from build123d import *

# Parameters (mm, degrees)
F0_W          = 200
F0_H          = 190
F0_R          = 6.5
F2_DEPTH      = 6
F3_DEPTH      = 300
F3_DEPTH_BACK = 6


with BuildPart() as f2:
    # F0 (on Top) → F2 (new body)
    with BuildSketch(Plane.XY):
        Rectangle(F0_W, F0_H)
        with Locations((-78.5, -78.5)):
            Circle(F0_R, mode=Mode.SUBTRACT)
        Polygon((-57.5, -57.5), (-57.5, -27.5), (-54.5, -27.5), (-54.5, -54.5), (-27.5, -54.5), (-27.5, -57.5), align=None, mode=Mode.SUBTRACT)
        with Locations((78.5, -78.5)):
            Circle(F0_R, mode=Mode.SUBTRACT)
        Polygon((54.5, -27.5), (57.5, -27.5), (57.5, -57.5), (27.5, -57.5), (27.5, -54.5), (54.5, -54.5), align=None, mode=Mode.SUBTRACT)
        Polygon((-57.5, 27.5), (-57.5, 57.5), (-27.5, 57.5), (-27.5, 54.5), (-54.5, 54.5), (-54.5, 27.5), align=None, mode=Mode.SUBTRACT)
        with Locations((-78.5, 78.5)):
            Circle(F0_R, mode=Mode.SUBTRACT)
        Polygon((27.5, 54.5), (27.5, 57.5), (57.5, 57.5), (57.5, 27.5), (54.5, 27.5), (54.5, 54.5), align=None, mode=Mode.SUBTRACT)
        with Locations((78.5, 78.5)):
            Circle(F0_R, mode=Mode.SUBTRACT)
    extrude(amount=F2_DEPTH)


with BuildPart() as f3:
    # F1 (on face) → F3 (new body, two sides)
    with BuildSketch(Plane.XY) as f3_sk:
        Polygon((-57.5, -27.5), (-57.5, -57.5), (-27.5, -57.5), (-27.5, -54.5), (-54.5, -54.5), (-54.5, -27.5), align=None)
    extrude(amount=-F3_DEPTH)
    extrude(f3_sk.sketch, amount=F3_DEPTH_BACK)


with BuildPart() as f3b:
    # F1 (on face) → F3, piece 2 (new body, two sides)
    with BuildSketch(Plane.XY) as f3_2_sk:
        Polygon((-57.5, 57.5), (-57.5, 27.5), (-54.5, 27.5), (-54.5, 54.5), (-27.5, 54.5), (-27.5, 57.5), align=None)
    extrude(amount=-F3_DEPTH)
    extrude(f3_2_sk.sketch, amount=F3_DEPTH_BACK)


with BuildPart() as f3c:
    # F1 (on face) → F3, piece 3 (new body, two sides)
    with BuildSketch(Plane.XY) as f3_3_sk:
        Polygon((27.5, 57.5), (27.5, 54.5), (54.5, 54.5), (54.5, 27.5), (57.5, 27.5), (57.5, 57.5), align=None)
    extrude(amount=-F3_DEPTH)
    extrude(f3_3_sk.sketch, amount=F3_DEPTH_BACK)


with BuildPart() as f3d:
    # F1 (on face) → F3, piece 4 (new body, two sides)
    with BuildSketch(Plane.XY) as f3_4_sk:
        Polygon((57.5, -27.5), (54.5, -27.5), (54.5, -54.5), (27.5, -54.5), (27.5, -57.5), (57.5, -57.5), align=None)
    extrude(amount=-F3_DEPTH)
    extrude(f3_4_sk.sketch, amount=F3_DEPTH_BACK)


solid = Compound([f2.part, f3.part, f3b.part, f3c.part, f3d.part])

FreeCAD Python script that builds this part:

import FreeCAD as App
import Part
import Sketcher

V = App.Vector
Q = App.Units.Quantity

doc = App.newDocument("Part")
body = doc.addObject("PartDesign::Body", "Body")

# Sketch on XY plane
sketch1 = doc.addObject("Sketcher::SketchObject", "Sketch")
body.addObject(sketch1)
sketch1.AttachmentSupport = (doc.XY_Plane, [""])
sketch1.MapMode = "FlatFace"
sketch1.addGeometry(Part.LineSegment(V(-100, 95, 0), V(-100, -95, 0)), False)
sketch1.addGeometry(Part.LineSegment(V(-100, -95, 0), V(100, -95, 0)), False)
sketch1.addGeometry(Part.LineSegment(V(100, -95, 0), V(100, 95, 0)), False)
sketch1.addGeometry(Part.LineSegment(V(100, 95, 0), V(-100, 95, 0)), False)
sketch1.addGeometry(Part.Circle(V(-78.5, -78.5, 0), V(0, 0, 1), 6.5), False)
sketch1.addGeometry(Part.LineSegment(V(-27.5, -57.5, 0), V(-57.5, -57.5, 0)), False)
sketch1.addGeometry(Part.LineSegment(V(-57.5, -57.5, 0), V(-57.5, -27.5, 0)), False)
sketch1.addGeometry(Part.LineSegment(V(-57.5, -27.5, 0), V(-54.5, -27.5, 0)), False)
sketch1.addGeometry(Part.LineSegment(V(-54.5, -27.5, 0), V(-54.5, -54.5, 0)), False)
sketch1.addGeometry(Part.LineSegment(V(-54.5, -54.5, 0), V(-27.5, -54.5, 0)), False)
sketch1.addGeometry(Part.LineSegment(V(-27.5, -54.5, 0), V(-27.5, -57.5, 0)), False)
sketch1.addGeometry(Part.Circle(V(78.5, -78.5, 0), V(0, 0, 1), 6.5), False)
sketch1.addGeometry(Part.LineSegment(V(54.5, -54.5, 0), V(54.5, -27.5, 0)), False)
sketch1.addGeometry(Part.LineSegment(V(54.5, -27.5, 0), V(57.5, -27.5, 0)), False)
sketch1.addGeometry(Part.LineSegment(V(57.5, -27.5, 0), V(57.5, -57.5, 0)), False)
sketch1.addGeometry(Part.LineSegment(V(57.5, -57.5, 0), V(27.5, -57.5, 0)), False)
sketch1.addGeometry(Part.LineSegment(V(27.5, -57.5, 0), V(27.5, -54.5, 0)), False)
sketch1.addGeometry(Part.LineSegment(V(27.5, -54.5, 0), V(54.5, -54.5, 0)), False)
sketch1.addGeometry(Part.Circle(V(-78.5, 78.5, 0), V(0, 0, 1), 6.5), False)
sketch1.addGeometry(Part.LineSegment(V(-54.5, 27.5, 0), V(-57.5, 27.5, 0)), False)
sketch1.addGeometry(Part.LineSegment(V(-57.5, 27.5, 0), V(-57.5, 57.5, 0)), False)
sketch1.addGeometry(Part.LineSegment(V(-57.5, 57.5, 0), V(-27.5, 57.5, 0)), False)
sketch1.addGeometry(Part.LineSegment(V(-27.5, 57.5, 0), V(-27.5, 54.5, 0)), False)
sketch1.addGeometry(Part.LineSegment(V(-27.5, 54.5, 0), V(-54.5, 54.5, 0)), False)
sketch1.addGeometry(Part.LineSegment(V(-54.5, 54.5, 0), V(-54.5, 27.5, 0)), False)
sketch1.addGeometry(Part.LineSegment(V(54.5, 54.5, 0), V(27.5, 54.5, 0)), False)
sketch1.addGeometry(Part.LineSegment(V(27.5, 54.5, 0), V(27.5, 57.5, 0)), False)
sketch1.addGeometry(Part.LineSegment(V(27.5, 57.5, 0), V(57.5, 57.5, 0)), False)
sketch1.addGeometry(Part.LineSegment(V(57.5, 57.5, 0), V(57.5, 27.5, 0)), False)
sketch1.addGeometry(Part.LineSegment(V(57.5, 27.5, 0), V(54.5, 27.5, 0)), False)
sketch1.addGeometry(Part.LineSegment(V(54.5, 27.5, 0), V(54.5, 54.5, 0)), False)
sketch1.addGeometry(Part.Circle(V(78.5, 78.5, 0), V(0, 0, 1), 6.5), False)
sketch1.addConstraint(Sketcher.Constraint("Coincident", 0, 2, 1, 1))
sketch1.addConstraint(Sketcher.Constraint("Coincident", 1, 2, 2, 1))
sketch1.addConstraint(Sketcher.Constraint("Coincident", 2, 2, 3, 1))
sketch1.addConstraint(Sketcher.Constraint("Coincident", 3, 2, 0, 1))
sketch1.addConstraint(Sketcher.Constraint("Coincident", 5, 2, 6, 1))
sketch1.addConstraint(Sketcher.Constraint("Coincident", 6, 2, 7, 1))
sketch1.addConstraint(Sketcher.Constraint("Coincident", 7, 2, 8, 1))
sketch1.addConstraint(Sketcher.Constraint("Coincident", 8, 2, 9, 1))
sketch1.addConstraint(Sketcher.Constraint("Coincident", 9, 2, 10, 1))
sketch1.addConstraint(Sketcher.Constraint("Coincident", 10, 2, 5, 1))
sketch1.addConstraint(Sketcher.Constraint("Coincident", 12, 2, 13, 1))
sketch1.addConstraint(Sketcher.Constraint("Coincident", 13, 2, 14, 1))
sketch1.addConstraint(Sketcher.Constraint("Coincident", 14, 2, 15, 1))
sketch1.addConstraint(Sketcher.Constraint("Coincident", 15, 2, 16, 1))
sketch1.addConstraint(Sketcher.Constraint("Coincident", 16, 2, 17, 1))
sketch1.addConstraint(Sketcher.Constraint("Coincident", 17, 2, 12, 1))
sketch1.addConstraint(Sketcher.Constraint("Coincident", 19, 2, 20, 1))
sketch1.addConstraint(Sketcher.Constraint("Coincident", 20, 2, 21, 1))
sketch1.addConstraint(Sketcher.Constraint("Coincident", 21, 2, 22, 1))
sketch1.addConstraint(Sketcher.Constraint("Coincident", 22, 2, 23, 1))
sketch1.addConstraint(Sketcher.Constraint("Coincident", 23, 2, 24, 1))
sketch1.addConstraint(Sketcher.Constraint("Coincident", 24, 2, 19, 1))
sketch1.addConstraint(Sketcher.Constraint("Coincident", 25, 2, 26, 1))
sketch1.addConstraint(Sketcher.Constraint("Coincident", 26, 2, 27, 1))
sketch1.addConstraint(Sketcher.Constraint("Coincident", 27, 2, 28, 1))
sketch1.addConstraint(Sketcher.Constraint("Coincident", 28, 2, 29, 1))
sketch1.addConstraint(Sketcher.Constraint("Coincident", 29, 2, 30, 1))
sketch1.addConstraint(Sketcher.Constraint("Coincident", 30, 2, 25, 1))
sketch1.addConstraint(Sketcher.Constraint("Vertical", 0))
sketch1.addConstraint(Sketcher.Constraint("Horizontal", 1))
sketch1.addConstraint(Sketcher.Constraint("Vertical", 2))
sketch1.addConstraint(Sketcher.Constraint("Horizontal", 3))
sketch1.addConstraint(Sketcher.Constraint("Horizontal", 5))
sketch1.addConstraint(Sketcher.Constraint("Vertical", 6))
sketch1.addConstraint(Sketcher.Constraint("Horizontal", 7))
sketch1.addConstraint(Sketcher.Constraint("Vertical", 8))
sketch1.addConstraint(Sketcher.Constraint("Horizontal", 9))
sketch1.addConstraint(Sketcher.Constraint("Vertical", 10))
sketch1.addConstraint(Sketcher.Constraint("Vertical", 12))
sketch1.addConstraint(Sketcher.Constraint("Horizontal", 13))
sketch1.addConstraint(Sketcher.Constraint("Vertical", 14))
sketch1.addConstraint(Sketcher.Constraint("Horizontal", 15))
sketch1.addConstraint(Sketcher.Constraint("Vertical", 16))
sketch1.addConstraint(Sketcher.Constraint("Horizontal", 17))
sketch1.addConstraint(Sketcher.Constraint("Horizontal", 19))
sketch1.addConstraint(Sketcher.Constraint("Vertical", 20))
sketch1.addConstraint(Sketcher.Constraint("Horizontal", 21))
sketch1.addConstraint(Sketcher.Constraint("Vertical", 22))
sketch1.addConstraint(Sketcher.Constraint("Horizontal", 23))
sketch1.addConstraint(Sketcher.Constraint("Vertical", 24))
sketch1.addConstraint(Sketcher.Constraint("Horizontal", 25))
sketch1.addConstraint(Sketcher.Constraint("Vertical", 26))
sketch1.addConstraint(Sketcher.Constraint("Horizontal", 27))
sketch1.addConstraint(Sketcher.Constraint("Vertical", 28))
sketch1.addConstraint(Sketcher.Constraint("Horizontal", 29))
sketch1.addConstraint(Sketcher.Constraint("Vertical", 30))
sketch1.addConstraint(Sketcher.Constraint("Equal", 4, 11))
sketch1.addConstraint(Sketcher.Constraint("Equal", 11, 18))
sketch1.addConstraint(Sketcher.Constraint("Equal", 18, 31))
sketch1.addConstraint(Sketcher.Constraint("Symmetric", 11, 3, 18, 3, -1, 1))
sketch1.addConstraint(Sketcher.Constraint("Symmetric", 4, 3, 31, 3, -1, 1))
sketch1.addConstraint(Sketcher.Constraint("Symmetric", 0, 2, 2, 2, -1, 1))
sketch1.addConstraint(Sketcher.Constraint("Symmetric", 13, 2, 19, 2, -1, 1))
sketch1.addConstraint(Sketcher.Constraint("Symmetric", 15, 2, 21, 2, -1, 1))
sketch1.addConstraint(Sketcher.Constraint("Symmetric", 17, 2, 23, 2, -1, 1))
sketch1.addConstraint(Sketcher.Constraint("Symmetric", 9, 2, 25, 2, -1, 1))
sketch1.addConstraint(Sketcher.Constraint("Symmetric", 5, 2, 27, 2, -1, 1))
sketch1.addConstraint(Sketcher.Constraint("Symmetric", 7, 2, 29, 2, -1, 1))
sketch1.addConstraint(Sketcher.Constraint("Symmetric", 4, 3, 11, 3, -2))
sketch1.addConstraint(Sketcher.Constraint("Symmetric", 7, 2, 12, 2, -2))
sketch1.addConstraint(Sketcher.Constraint("Symmetric", 5, 2, 14, 2, -2))
sketch1.addConstraint(Sketcher.Constraint("Symmetric", 9, 2, 16, 2, -2))
sketch1.addConstraint(Sketcher.Constraint("Equal", 27, 6))
sketch1.addConstraint(Sketcher.Constraint("Equal", 25, 8))
sketch1.addConstraint(Sketcher.Constraint("Diameter", 4, Q("13 mm")))
sketch1.addConstraint(Sketcher.Constraint("DistanceX", 1, 1, 1, 2, Q("200 mm")))
sketch1.addConstraint(Sketcher.Constraint("DistanceX", 5, 2, 5, 1, Q("30 mm")))
sketch1.addConstraint(Sketcher.Constraint("DistanceX", 7, 1, 7, 2, Q("3 mm")))
sketch1.addConstraint(Sketcher.Constraint("DistanceY", 0, 2, 0, 1, Q("190 mm")))
sketch1.addConstraint(Sketcher.Constraint("DistanceX", 4, 3, 11, 3, Q("157 mm")))
sketch1.addConstraint(Sketcher.Constraint("DistanceY", 4, 3, 18, 3, Q("157 mm")))
sketch1.addConstraint(Sketcher.Constraint("DistanceX", 4, 3, 5, 2, Q("21 mm")))
sketch1.addConstraint(Sketcher.Constraint("DistanceY", 4, 3, 5, 2, Q("21 mm")))
pad1 = doc.addObject("PartDesign::Pad", "Pad")
body.addObject(pad1)
pad1.Profile = sketch1
pad1.Length = 6
body2 = doc.addObject("PartDesign::Body", "Body001")

# Sketch on XY plane
sketch2 = doc.addObject("Sketcher::SketchObject", "Sketch001")
body2.addObject(sketch2)
sketch2.AttachmentSupport = (doc.getObject("XY_Plane001"), [""])
sketch2.MapMode = "FlatFace"
sketch2.addGeometry(Part.LineSegment(V(-57.5, -27.5, 0), V(-57.5, -57.5, 0)), False)
sketch2.addGeometry(Part.LineSegment(V(-57.5, -57.5, 0), V(-27.5, -57.5, 0)), False)
sketch2.addGeometry(Part.LineSegment(V(-27.5, -57.5, 0), V(-27.5, -54.5, 0)), False)
sketch2.addGeometry(Part.LineSegment(V(-27.5, -54.5, 0), V(-54.5, -54.5, 0)), False)
sketch2.addGeometry(Part.LineSegment(V(-54.5, -54.5, 0), V(-54.5, -27.5, 0)), False)
sketch2.addGeometry(Part.LineSegment(V(-54.5, -27.5, 0), V(-57.5, -27.5, 0)), False)
sketch2.addConstraint(Sketcher.Constraint("Coincident", 0, 2, 1, 1))
sketch2.addConstraint(Sketcher.Constraint("Coincident", 1, 2, 2, 1))
sketch2.addConstraint(Sketcher.Constraint("Coincident", 2, 2, 3, 1))
sketch2.addConstraint(Sketcher.Constraint("Coincident", 3, 2, 4, 1))
sketch2.addConstraint(Sketcher.Constraint("Coincident", 4, 2, 5, 1))
sketch2.addConstraint(Sketcher.Constraint("Coincident", 5, 2, 0, 1))
sketch2.addConstraint(Sketcher.Constraint("Vertical", 0))
sketch2.addConstraint(Sketcher.Constraint("Horizontal", 1))
sketch2.addConstraint(Sketcher.Constraint("Vertical", 2))
sketch2.addConstraint(Sketcher.Constraint("Horizontal", 3))
sketch2.addConstraint(Sketcher.Constraint("Vertical", 4))
sketch2.addConstraint(Sketcher.Constraint("Horizontal", 5))
sketch2.addConstraint(Sketcher.Constraint("Equal", 1, 0))
sketch2.addConstraint(Sketcher.Constraint("Equal", 5, 2))
sketch2.addConstraint(Sketcher.Constraint("DistanceX", 1, 1, 1, 2, Q("30 mm")))
sketch2.addConstraint(Sketcher.Constraint("DistanceX", 3, 2, 3, 1, Q("27 mm")))
sketch2.addConstraint(Sketcher.Constraint("DistanceX", 0, 2, -1, 1, Q("57.5 mm")))
sketch2.addConstraint(Sketcher.Constraint("DistanceY", 0, 2, -1, 1, Q("57.5 mm")))
pad2 = doc.addObject("PartDesign::Pad", "Pad001")
body2.addObject(pad2)
pad2.Profile = sketch2
pad2.Type = "TwoLengths"
pad2.Length = 300
pad2.Length2 = 6
pad2.Reversed = True
body3 = doc.addObject("PartDesign::Body", "Body002")

# Sketch on XY plane
sketch3 = doc.addObject("Sketcher::SketchObject", "Sketch002")
body3.addObject(sketch3)
sketch3.AttachmentSupport = (doc.getObject("XY_Plane002"), [""])
sketch3.MapMode = "FlatFace"
sketch3.addGeometry(Part.LineSegment(V(-57.5, 57.5, 0), V(-57.5, 27.5, 0)), False)
sketch3.addGeometry(Part.LineSegment(V(-57.5, 27.5, 0), V(-54.5, 27.5, 0)), False)
sketch3.addGeometry(Part.LineSegment(V(-54.5, 27.5, 0), V(-54.5, 54.5, 0)), False)
sketch3.addGeometry(Part.LineSegment(V(-54.5, 54.5, 0), V(-27.5, 54.5, 0)), False)
sketch3.addGeometry(Part.LineSegment(V(-27.5, 54.5, 0), V(-27.5, 57.5, 0)), False)
sketch3.addGeometry(Part.LineSegment(V(-27.5, 57.5, 0), V(-57.5, 57.5, 0)), False)
sketch3.addConstraint(Sketcher.Constraint("Coincident", 0, 2, 1, 1))
sketch3.addConstraint(Sketcher.Constraint("Coincident", 1, 2, 2, 1))
sketch3.addConstraint(Sketcher.Constraint("Coincident", 2, 2, 3, 1))
sketch3.addConstraint(Sketcher.Constraint("Coincident", 3, 2, 4, 1))
sketch3.addConstraint(Sketcher.Constraint("Coincident", 4, 2, 5, 1))
sketch3.addConstraint(Sketcher.Constraint("Coincident", 5, 2, 0, 1))
sketch3.addConstraint(Sketcher.Constraint("Vertical", 0))
sketch3.addConstraint(Sketcher.Constraint("Horizontal", 1))
sketch3.addConstraint(Sketcher.Constraint("Vertical", 2))
sketch3.addConstraint(Sketcher.Constraint("Horizontal", 3))
sketch3.addConstraint(Sketcher.Constraint("Vertical", 4))
sketch3.addConstraint(Sketcher.Constraint("Horizontal", 5))
sketch3.addConstraint(Sketcher.Constraint("Equal", 5, 0))
sketch3.addConstraint(Sketcher.Constraint("Equal", 3, 2))
sketch3.addConstraint(Sketcher.Constraint("DistanceX", 1, 1, 1, 2, Q("3 mm")))
sketch3.addConstraint(Sketcher.Constraint("DistanceX", 3, 1, 3, 2, Q("27 mm")))
sketch3.addConstraint(Sketcher.Constraint("DistanceX", 0, 2, -1, 1, Q("57.5 mm")))
sketch3.addConstraint(Sketcher.Constraint("DistanceY", -1, 1, 0, 2, Q("27.5 mm")))
pad3 = doc.addObject("PartDesign::Pad", "Pad002")
body3.addObject(pad3)
pad3.Profile = sketch3
pad3.Type = "TwoLengths"
pad3.Length = 300
pad3.Length2 = 6
pad3.Reversed = True
body4 = doc.addObject("PartDesign::Body", "Body003")

# Sketch on XY plane
sketch4 = doc.addObject("Sketcher::SketchObject", "Sketch003")
body4.addObject(sketch4)
sketch4.AttachmentSupport = (doc.getObject("XY_Plane003"), [""])
sketch4.MapMode = "FlatFace"
sketch4.addGeometry(Part.LineSegment(V(27.5, 57.5, 0), V(27.5, 54.5, 0)), False)
sketch4.addGeometry(Part.LineSegment(V(27.5, 54.5, 0), V(54.5, 54.5, 0)), False)
sketch4.addGeometry(Part.LineSegment(V(54.5, 54.5, 0), V(54.5, 27.5, 0)), False)
sketch4.addGeometry(Part.LineSegment(V(54.5, 27.5, 0), V(57.5, 27.5, 0)), False)
sketch4.addGeometry(Part.LineSegment(V(57.5, 27.5, 0), V(57.5, 57.5, 0)), False)
sketch4.addGeometry(Part.LineSegment(V(57.5, 57.5, 0), V(27.5, 57.5, 0)), False)
sketch4.addConstraint(Sketcher.Constraint("Coincident", 0, 2, 1, 1))
sketch4.addConstraint(Sketcher.Constraint("Coincident", 1, 2, 2, 1))
sketch4.addConstraint(Sketcher.Constraint("Coincident", 2, 2, 3, 1))
sketch4.addConstraint(Sketcher.Constraint("Coincident", 3, 2, 4, 1))
sketch4.addConstraint(Sketcher.Constraint("Coincident", 4, 2, 5, 1))
sketch4.addConstraint(Sketcher.Constraint("Coincident", 5, 2, 0, 1))
sketch4.addConstraint(Sketcher.Constraint("Vertical", 0))
sketch4.addConstraint(Sketcher.Constraint("Horizontal", 1))
sketch4.addConstraint(Sketcher.Constraint("Vertical", 2))
sketch4.addConstraint(Sketcher.Constraint("Horizontal", 3))
sketch4.addConstraint(Sketcher.Constraint("Vertical", 4))
sketch4.addConstraint(Sketcher.Constraint("Horizontal", 5))
sketch4.addConstraint(Sketcher.Constraint("Equal", 3, 0))
sketch4.addConstraint(Sketcher.Constraint("Equal", 1, 2))
sketch4.addConstraint(Sketcher.Constraint("DistanceX", 1, 1, 1, 2, Q("27 mm")))
sketch4.addConstraint(Sketcher.Constraint("DistanceX", 3, 1, 3, 2, Q("3 mm")))
sketch4.addConstraint(Sketcher.Constraint("DistanceX", -1, 1, 0, 2, Q("27.5 mm")))
sketch4.addConstraint(Sketcher.Constraint("DistanceY", -1, 1, 0, 2, Q("54.5 mm")))
pad4 = doc.addObject("PartDesign::Pad", "Pad003")
body4.addObject(pad4)
pad4.Profile = sketch4
pad4.Type = "TwoLengths"
pad4.Length = 300
pad4.Length2 = 6
pad4.Reversed = True
body5 = doc.addObject("PartDesign::Body", "Body004")

# Sketch on XY plane
sketch5 = doc.addObject("Sketcher::SketchObject", "Sketch004")
body5.addObject(sketch5)
sketch5.AttachmentSupport = (doc.getObject("XY_Plane004"), [""])
sketch5.MapMode = "FlatFace"
sketch5.addGeometry(Part.LineSegment(V(57.5, -27.5, 0), V(54.5, -27.5, 0)), False)
sketch5.addGeometry(Part.LineSegment(V(54.5, -27.5, 0), V(54.5, -54.5, 0)), False)
sketch5.addGeometry(Part.LineSegment(V(54.5, -54.5, 0), V(27.5, -54.5, 0)), False)
sketch5.addGeometry(Part.LineSegment(V(27.5, -54.5, 0), V(27.5, -57.5, 0)), False)
sketch5.addGeometry(Part.LineSegment(V(27.5, -57.5, 0), V(57.5, -57.5, 0)), False)
sketch5.addGeometry(Part.LineSegment(V(57.5, -57.5, 0), V(57.5, -27.5, 0)), False)
sketch5.addConstraint(Sketcher.Constraint("Coincident", 0, 2, 1, 1))
sketch5.addConstraint(Sketcher.Constraint("Coincident", 1, 2, 2, 1))
sketch5.addConstraint(Sketcher.Constraint("Coincident", 2, 2, 3, 1))
sketch5.addConstraint(Sketcher.Constraint("Coincident", 3, 2, 4, 1))
sketch5.addConstraint(Sketcher.Constraint("Coincident", 4, 2, 5, 1))
sketch5.addConstraint(Sketcher.Constraint("Coincident", 5, 2, 0, 1))
sketch5.addConstraint(Sketcher.Constraint("Horizontal", 0))
sketch5.addConstraint(Sketcher.Constraint("Vertical", 1))
sketch5.addConstraint(Sketcher.Constraint("Horizontal", 2))
sketch5.addConstraint(Sketcher.Constraint("Vertical", 3))
sketch5.addConstraint(Sketcher.Constraint("Horizontal", 4))
sketch5.addConstraint(Sketcher.Constraint("Vertical", 5))
sketch5.addConstraint(Sketcher.Constraint("Equal", 2, 1))
sketch5.addConstraint(Sketcher.Constraint("Equal", 0, 3))
sketch5.addConstraint(Sketcher.Constraint("DistanceX", 0, 2, 0, 1, Q("3 mm")))
sketch5.addConstraint(Sketcher.Constraint("DistanceX", 2, 2, 2, 1, Q("27 mm")))
sketch5.addConstraint(Sketcher.Constraint("DistanceX", -1, 1, 0, 2, Q("54.5 mm")))
sketch5.addConstraint(Sketcher.Constraint("DistanceY", 0, 2, -1, 1, Q("27.5 mm")))
pad5 = doc.addObject("PartDesign::Pad", "Pad004")
body5.addObject(pad5)
pad5.Profile = sketch5
pad5.Type = "TwoLengths"
pad5.Length = 300
pad5.Length2 = 6
pad5.Reversed = True

doc.recompute()
